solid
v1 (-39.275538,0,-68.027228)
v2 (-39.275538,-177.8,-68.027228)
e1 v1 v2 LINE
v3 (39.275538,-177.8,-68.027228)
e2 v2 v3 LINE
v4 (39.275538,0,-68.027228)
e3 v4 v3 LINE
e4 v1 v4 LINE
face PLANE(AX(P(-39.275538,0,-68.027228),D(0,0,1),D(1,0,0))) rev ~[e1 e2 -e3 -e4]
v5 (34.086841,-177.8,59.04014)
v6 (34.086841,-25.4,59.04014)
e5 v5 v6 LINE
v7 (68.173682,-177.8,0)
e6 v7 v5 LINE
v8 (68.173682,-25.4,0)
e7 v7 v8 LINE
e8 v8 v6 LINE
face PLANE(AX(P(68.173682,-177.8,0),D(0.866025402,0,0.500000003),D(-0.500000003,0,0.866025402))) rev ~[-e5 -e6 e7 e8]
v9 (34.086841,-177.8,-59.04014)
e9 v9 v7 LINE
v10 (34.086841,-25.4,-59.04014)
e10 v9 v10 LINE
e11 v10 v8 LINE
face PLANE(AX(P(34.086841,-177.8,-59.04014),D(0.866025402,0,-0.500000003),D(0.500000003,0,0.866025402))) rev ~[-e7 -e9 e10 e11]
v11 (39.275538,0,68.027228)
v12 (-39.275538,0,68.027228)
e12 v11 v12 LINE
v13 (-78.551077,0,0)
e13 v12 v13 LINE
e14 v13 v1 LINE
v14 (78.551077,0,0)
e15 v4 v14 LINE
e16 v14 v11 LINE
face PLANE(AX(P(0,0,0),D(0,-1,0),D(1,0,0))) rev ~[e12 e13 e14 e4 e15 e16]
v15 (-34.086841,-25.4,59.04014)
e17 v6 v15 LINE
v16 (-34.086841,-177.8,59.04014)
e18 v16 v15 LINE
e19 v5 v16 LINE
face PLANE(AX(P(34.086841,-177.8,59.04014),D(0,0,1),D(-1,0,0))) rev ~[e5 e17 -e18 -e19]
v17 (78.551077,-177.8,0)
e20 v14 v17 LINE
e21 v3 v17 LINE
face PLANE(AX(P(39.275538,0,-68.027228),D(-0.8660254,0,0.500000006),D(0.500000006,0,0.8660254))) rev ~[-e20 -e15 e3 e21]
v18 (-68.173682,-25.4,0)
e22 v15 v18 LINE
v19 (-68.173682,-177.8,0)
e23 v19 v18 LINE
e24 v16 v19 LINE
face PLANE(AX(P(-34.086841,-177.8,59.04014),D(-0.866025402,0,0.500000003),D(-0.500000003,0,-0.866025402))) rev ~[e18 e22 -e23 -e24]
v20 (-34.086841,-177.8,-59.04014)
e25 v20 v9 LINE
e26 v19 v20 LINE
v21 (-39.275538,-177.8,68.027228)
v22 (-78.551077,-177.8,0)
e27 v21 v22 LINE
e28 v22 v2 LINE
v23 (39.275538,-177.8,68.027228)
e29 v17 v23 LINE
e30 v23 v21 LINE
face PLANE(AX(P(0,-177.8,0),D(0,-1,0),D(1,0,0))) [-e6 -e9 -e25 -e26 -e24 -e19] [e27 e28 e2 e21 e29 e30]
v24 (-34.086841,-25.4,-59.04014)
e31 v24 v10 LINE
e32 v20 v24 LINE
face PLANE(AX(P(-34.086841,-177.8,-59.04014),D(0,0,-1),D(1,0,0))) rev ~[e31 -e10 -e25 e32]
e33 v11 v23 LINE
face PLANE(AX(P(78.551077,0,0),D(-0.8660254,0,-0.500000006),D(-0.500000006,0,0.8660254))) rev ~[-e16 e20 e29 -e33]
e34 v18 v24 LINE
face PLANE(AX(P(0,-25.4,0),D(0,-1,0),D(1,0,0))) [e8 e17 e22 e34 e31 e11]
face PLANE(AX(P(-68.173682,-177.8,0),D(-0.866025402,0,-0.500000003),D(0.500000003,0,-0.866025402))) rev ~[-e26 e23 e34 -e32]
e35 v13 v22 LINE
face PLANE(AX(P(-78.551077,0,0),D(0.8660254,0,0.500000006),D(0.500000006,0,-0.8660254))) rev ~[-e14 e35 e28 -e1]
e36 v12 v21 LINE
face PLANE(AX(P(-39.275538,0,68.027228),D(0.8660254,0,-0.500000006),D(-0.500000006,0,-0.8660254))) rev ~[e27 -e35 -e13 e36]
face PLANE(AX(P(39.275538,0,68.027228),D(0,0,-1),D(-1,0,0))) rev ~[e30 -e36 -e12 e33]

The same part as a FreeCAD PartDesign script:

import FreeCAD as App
import Part
import Sketcher
Q = App.Units.Quantity


def add_polygon(sketch, points):
    """Adds a closed chain of lines whose ends are joined by coincident constraints."""
    first, n = sketch.GeometryCount, len(points)
    for a, b in zip(points, points[1:] + points[:1]):
        sketch.addGeometry(Part.LineSegment(App.Vector(*a, 0), App.Vector(*b, 0)), False)
    for i in range(n):
        sketch.addConstraint(Sketcher.Constraint("Coincident", first + i, 2, first + (i + 1) % n, 1))

doc = App.newDocument("Part")
body = doc.addObject("PartDesign::Body", "Body")

# Sketch on XZ plane
sketch1 = doc.addObject("Sketcher::SketchObject", "Sketch")
body.addObject(sketch1)
sketch1.AttachmentSupport = (doc.XZ_Plane, [""])
sketch1.MapMode = "FlatFace"
add_polygon(sketch1, [(39.275538, 68.027228), (-39.275538, 68.027228), (-78.551077, 0), (-39.275538, -68.027228), (39.275538, -68.027228), (78.551077, 0)])  # lines 0-5
sketch1.addConstraint([
    Sketcher.Constraint("Horizontal", 0),
    Sketcher.Constraint("Horizontal", 3),
    Sketcher.Constraint("Symmetric", 0, 2, 3, 2, -1, 1),
    Sketcher.Constraint("Symmetric", 1, 2, 4, 2, -1, 1),
    Sketcher.Constraint("PointOnObject", 1, 2, -1),
    Sketcher.Constraint("Parallel", 2, 5),
    Sketcher.Constraint("Vertical", 0, 2, 2, 2),
    Sketcher.Constraint("Angle", 1, Q("-120 deg")),
    Sketcher.Constraint("DistanceX", 0, 2, 0, 1, Q("78.551076 mm")),
    Sketcher.Constraint("DistanceX", 1, 2, 0, 2, Q("39.275539 mm")),
])
pad1 = doc.addObject("PartDesign::Pad", "Pad")
body.addObject(pad1)
pad1.Profile = sketch1
pad1.Length = Q("7 in")

# Sketch on XZ plane
sketch2 = doc.addObject("Sketcher::SketchObject", "Sketch001")
body.addObject(sketch2)
sketch2.AttachmentSupport = (doc.XZ_Plane, [""])
sketch2.MapMode = "FlatFace"
sketch2.AttachmentOffset = App.Placement(App.Vector(0, 0, 7 * 25.4), App.Rotation())
add_polygon(sketch2, [(34.086841, 59.04014), (-34.086841, 59.04014), (-68.173682, 0), (-34.086841, -59.04014), (34.086841, -59.04014), (68.173682, 0)])  # lines 0-5
sketch2.addConstraint([
    Sketcher.Constraint("Horizontal", 0),
    Sketcher.Constraint("Horizontal", 3),
    Sketcher.Constraint("Symmetric", 0, 2, 3, 2, -1, 1),
    Sketcher.Constraint("Symmetric", 1, 2, 4, 2, -1, 1),
    Sketcher.Constraint("PointOnObject", 1, 2, -1),
    Sketcher.Constraint("Parallel", 2, 5),
    Sketcher.Constraint("Vertical", 0, 2, 2, 2),
    Sketcher.Constraint("Angle", 1, Q("-120 deg")),
    Sketcher.Constraint("DistanceX", 0, 2, 0, 1, Q("68.173682 mm")),
    Sketcher.Constraint("Distance", 1, Q("68.173682 mm")),
])
pocket1 = doc.addObject("PartDesign::Pocket", "Pocket")
body.addObject(pocket1)
pocket1.Profile = sketch2
pocket1.Length = Q("6 in")

doc.recompute()
